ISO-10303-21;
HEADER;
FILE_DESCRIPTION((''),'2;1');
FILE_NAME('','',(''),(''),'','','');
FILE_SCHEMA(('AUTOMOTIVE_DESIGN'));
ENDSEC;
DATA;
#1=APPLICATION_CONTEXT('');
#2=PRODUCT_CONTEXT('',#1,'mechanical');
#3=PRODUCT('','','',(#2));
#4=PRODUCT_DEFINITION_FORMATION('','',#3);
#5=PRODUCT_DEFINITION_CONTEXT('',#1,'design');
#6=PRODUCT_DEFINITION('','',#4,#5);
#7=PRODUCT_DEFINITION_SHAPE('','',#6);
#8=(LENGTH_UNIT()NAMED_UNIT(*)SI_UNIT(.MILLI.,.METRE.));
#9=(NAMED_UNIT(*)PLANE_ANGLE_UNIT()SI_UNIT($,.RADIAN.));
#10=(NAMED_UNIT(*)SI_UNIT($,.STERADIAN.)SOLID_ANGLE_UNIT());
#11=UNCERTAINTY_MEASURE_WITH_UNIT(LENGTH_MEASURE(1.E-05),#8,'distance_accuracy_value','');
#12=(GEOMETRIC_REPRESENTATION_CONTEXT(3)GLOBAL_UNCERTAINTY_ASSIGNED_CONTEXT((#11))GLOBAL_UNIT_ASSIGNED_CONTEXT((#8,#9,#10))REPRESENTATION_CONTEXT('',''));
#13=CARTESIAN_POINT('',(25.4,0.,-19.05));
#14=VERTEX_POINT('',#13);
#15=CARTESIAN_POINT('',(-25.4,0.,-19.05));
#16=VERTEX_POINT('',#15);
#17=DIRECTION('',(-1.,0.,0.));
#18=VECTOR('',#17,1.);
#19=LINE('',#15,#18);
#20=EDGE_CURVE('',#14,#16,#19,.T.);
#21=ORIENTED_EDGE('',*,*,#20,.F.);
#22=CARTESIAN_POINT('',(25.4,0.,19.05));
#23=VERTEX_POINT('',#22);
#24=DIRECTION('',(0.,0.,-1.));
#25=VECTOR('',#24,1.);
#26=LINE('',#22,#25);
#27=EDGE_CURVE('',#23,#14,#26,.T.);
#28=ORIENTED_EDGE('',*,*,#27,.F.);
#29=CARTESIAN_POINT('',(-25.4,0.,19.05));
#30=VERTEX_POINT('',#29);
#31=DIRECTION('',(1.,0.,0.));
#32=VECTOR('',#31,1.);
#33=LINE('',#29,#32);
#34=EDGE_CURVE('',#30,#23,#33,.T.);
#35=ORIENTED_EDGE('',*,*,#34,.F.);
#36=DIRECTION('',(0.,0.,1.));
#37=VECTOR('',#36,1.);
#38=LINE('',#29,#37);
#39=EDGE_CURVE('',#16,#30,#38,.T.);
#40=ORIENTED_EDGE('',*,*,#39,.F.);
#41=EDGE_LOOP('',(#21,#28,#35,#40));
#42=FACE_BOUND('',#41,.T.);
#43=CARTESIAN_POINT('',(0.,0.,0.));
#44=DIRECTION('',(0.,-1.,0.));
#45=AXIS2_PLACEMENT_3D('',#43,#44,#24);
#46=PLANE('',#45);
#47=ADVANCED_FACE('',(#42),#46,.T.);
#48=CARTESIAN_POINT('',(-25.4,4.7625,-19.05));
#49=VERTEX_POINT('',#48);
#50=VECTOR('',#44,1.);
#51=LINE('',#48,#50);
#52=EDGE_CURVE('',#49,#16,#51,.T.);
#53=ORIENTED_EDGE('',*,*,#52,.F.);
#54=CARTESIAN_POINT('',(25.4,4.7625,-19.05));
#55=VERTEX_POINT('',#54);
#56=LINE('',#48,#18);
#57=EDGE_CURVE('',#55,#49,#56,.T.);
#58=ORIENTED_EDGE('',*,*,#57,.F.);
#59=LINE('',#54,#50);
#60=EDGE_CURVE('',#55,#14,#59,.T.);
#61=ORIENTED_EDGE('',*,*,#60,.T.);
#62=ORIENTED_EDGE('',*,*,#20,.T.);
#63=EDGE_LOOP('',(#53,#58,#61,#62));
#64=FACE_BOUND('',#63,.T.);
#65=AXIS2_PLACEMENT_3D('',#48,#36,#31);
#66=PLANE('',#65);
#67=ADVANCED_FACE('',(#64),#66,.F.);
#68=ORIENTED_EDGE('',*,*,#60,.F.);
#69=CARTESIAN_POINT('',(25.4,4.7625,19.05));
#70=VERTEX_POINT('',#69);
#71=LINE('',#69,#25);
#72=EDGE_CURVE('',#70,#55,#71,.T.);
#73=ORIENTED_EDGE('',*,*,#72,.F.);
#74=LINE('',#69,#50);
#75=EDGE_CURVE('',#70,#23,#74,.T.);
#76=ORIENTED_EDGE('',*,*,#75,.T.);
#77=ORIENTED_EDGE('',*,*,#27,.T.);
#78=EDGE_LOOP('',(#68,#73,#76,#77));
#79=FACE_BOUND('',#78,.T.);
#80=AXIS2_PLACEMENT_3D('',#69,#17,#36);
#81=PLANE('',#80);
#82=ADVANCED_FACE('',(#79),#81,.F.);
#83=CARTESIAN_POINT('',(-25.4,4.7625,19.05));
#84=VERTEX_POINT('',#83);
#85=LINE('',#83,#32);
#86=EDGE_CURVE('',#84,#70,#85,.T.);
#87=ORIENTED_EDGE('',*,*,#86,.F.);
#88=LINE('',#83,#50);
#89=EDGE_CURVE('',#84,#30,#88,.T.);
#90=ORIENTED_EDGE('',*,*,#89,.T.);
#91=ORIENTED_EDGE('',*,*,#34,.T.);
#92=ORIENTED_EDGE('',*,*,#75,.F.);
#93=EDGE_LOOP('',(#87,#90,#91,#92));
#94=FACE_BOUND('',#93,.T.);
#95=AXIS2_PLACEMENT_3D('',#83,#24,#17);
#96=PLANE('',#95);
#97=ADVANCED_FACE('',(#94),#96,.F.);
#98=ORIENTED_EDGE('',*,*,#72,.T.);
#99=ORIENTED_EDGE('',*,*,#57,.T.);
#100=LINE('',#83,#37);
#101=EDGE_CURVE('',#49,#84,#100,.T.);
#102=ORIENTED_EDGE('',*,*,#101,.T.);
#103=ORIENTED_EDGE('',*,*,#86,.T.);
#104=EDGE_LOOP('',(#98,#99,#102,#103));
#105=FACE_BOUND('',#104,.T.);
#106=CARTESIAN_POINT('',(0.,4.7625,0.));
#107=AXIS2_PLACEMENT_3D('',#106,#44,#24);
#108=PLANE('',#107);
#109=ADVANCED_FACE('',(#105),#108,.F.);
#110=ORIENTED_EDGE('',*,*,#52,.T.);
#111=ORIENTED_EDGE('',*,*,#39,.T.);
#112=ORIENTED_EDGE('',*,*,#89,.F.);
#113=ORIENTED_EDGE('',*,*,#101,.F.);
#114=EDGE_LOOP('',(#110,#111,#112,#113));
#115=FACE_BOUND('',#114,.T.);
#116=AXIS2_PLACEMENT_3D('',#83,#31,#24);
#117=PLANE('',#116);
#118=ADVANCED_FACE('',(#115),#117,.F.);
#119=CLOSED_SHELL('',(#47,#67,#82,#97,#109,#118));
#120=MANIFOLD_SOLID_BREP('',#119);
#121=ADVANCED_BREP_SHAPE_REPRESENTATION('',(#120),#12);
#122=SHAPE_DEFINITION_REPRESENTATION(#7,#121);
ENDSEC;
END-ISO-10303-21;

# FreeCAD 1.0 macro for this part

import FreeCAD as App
import Part
import Sketcher

V = App.Vector
Q = App.Units.Quantity

doc = App.newDocument("Part")
params = doc.addObject("Spreadsheet::Sheet", "Params")
for row, (alias, value) in enumerate([
    ("sketch1_width", "2 in"),
    ("sketch1_height", "1.5 in"),
    ("pad1_length", "0.1875 in"),
], start=1):
    params.set(f"A{row}", alias)
    params.set(f"B{row}", "=" + value)
    params.setAlias(f"B{row}", alias)

body = doc.addObject("PartDesign::Body", "Body")

sketch1 = doc.addObject("Sketcher::SketchObject", "Sketch")
body.addObject(sketch1)
sketch1.AttachmentSupport = (doc.XZ_Plane, [""])
sketch1.MapMode = "FlatFace"
sketch1.addGeometry([
    Part.LineSegment(V(-25, -19, 0), V(-25, 19, 0)),
    Part.LineSegment(V(-25, 19, 0), V(25, 19, 0)),
    Part.LineSegment(V(25, 19, 0), V(25, -19, 0)),
    Part.LineSegment(V(25, -19, 0), V(-25, -19, 0)),
], False)
sketch1.addConstraint([
    Sketcher.Constraint("Coincident", 0, 2, 1, 1),
    Sketcher.Constraint("Coincident", 1, 2, 2, 1),
    Sketcher.Constraint("Coincident", 2, 2, 3, 1),
    Sketcher.Constraint("Coincident", 3, 2, 0, 1),
    Sketcher.Constraint("Vertical", 0),
    Sketcher.Constraint("Horizontal", 1),
    Sketcher.Constraint("Vertical", 2),
    Sketcher.Constraint("Horizontal", 3),
    Sketcher.Constraint("Symmetric", 0, 2, 2, 2, -1, 1),
    Sketcher.Constraint("DistanceX", 1, 1, 1, 2, Q("2 in")),
    Sketcher.Constraint("DistanceY", 0, 1, 0, 2, Q("1.5 in")),
])
sketch1.setExpression("Constraints[9]", "Params.sketch1_width")
sketch1.setExpression("Constraints[10]", "Params.sketch1_height")
pad1 = doc.addObject("PartDesign::Pad", "Pad")
body.addObject(pad1)
pad1.Profile = sketch1
pad1.setExpression("Length", "Params.pad1_length")
pad1.Reversed = True

doc.recompute()
